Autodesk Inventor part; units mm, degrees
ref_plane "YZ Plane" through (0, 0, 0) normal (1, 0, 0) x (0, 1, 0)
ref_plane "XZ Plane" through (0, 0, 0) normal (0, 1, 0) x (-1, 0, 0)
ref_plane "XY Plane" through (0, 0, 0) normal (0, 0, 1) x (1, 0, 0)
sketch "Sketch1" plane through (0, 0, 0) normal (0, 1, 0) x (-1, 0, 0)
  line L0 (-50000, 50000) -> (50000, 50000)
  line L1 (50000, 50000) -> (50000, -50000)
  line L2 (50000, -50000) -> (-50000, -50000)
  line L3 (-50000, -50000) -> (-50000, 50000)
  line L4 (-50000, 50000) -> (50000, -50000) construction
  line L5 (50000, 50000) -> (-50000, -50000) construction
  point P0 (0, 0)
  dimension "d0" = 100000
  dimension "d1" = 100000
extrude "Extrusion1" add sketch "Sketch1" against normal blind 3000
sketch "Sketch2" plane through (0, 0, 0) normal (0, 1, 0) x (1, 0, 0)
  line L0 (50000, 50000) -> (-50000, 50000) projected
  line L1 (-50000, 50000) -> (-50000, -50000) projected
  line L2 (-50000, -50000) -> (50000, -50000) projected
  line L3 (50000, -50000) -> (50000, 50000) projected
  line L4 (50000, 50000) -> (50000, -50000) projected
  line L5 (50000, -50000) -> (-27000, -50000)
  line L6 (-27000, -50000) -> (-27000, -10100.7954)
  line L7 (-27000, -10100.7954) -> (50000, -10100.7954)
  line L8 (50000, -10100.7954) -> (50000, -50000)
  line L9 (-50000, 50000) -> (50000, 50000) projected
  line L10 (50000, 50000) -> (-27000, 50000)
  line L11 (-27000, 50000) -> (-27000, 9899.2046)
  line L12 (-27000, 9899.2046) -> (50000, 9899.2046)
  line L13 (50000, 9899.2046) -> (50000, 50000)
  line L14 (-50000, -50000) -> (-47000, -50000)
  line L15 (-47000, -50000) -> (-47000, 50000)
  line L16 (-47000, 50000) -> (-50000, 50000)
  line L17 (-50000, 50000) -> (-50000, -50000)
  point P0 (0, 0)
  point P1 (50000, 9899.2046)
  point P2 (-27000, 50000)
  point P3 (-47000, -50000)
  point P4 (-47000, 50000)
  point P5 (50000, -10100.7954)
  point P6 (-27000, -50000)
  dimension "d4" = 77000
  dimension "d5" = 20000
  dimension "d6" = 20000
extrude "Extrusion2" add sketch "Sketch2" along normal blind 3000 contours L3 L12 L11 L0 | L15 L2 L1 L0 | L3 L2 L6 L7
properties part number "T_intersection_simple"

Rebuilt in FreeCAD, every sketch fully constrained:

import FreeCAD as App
import Part
import Sketcher
from FreeCAD import Vector


def add_polygon(sketch, points):
    """Adds a closed chain of lines whose ends are joined by coincident constraints."""
    first, n = sketch.GeometryCount, len(points)
    for a, b in zip(points, points[1:] + points[:1]):
        sketch.addGeometry(Part.LineSegment(App.Vector(*a, 0), App.Vector(*b, 0)), False)
    for i in range(n):
        sketch.addConstraint(Sketcher.Constraint("Coincident", first + i, 2, first + (i + 1) % n, 1))

doc = App.newDocument("Part")
body = doc.addObject("PartDesign::Body", "Body")

# Sketch on XZ plane
sketch1 = body.newObject("Sketcher::SketchObject", "Sketch")
sketch1.AttachmentSupport = (doc.getObject("XZ_Plane"), [""])
sketch1.MapMode = "FlatFace"
add_polygon(sketch1, [(-50000, 50000), (50000, 50000), (50000, -50000), (-50000, -50000)])  # lines 0-3
sketch1.addConstraint([
    Sketcher.Constraint("Horizontal", 0),
    Sketcher.Constraint("Vertical", 1),
    Sketcher.Constraint("Horizontal", 2),
    Sketcher.Constraint("Vertical", 3),
    Sketcher.Constraint("Symmetric", 0, 2, 2, 2, -1, 1),
    Sketcher.Constraint("Equal", 2, 1),
    Sketcher.Constraint("DistanceX", 0, 1, 0, 2, 100000.0),
])
pad1 = body.newObject("PartDesign::Pad", "Pad")
pad1.Profile = sketch1
pad1.Length = 3000

# Sketch on XZ plane
sketch2 = body.newObject("Sketcher::SketchObject", "Sketch001")
sketch2.AttachmentSupport = (doc.getObject("XZ_Plane"), [""])
sketch2.MapMode = "FlatFace"
add_polygon(sketch2, [(50000, -9899.2046), (50000, -50000), (-27000, -50000), (-27000, -9899.2046)])  # lines 0-3
add_polygon(sketch2, [(-47000, 50000), (-47000, -50000), (-50000, -50000), (-50000, 50000)])  # lines 4-7
add_polygon(sketch2, [(50000, 50000), (50000, 10100.7954), (-27000, 10100.7954), (-27000, 50000)])  # lines 8-11
sketch2.addConstraint([
    Sketcher.Constraint("Vertical", 0),
    Sketcher.Constraint("Horizontal", 1),
    Sketcher.Constraint("Vertical", 2),
    Sketcher.Constraint("Horizontal", 3),
    Sketcher.Constraint("Vertical", 4),
    Sketcher.Constraint("Horizontal", 5),
    Sketcher.Constraint("Vertical", 6),
    Sketcher.Constraint("Horizontal", 7),
    Sketcher.Constraint("Vertical", 8),
    Sketcher.Constraint("Horizontal", 9),
    Sketcher.Constraint("Vertical", 10),
    Sketcher.Constraint("Horizontal", 11),
    Sketcher.Constraint("Symmetric", 0, 2, 6, 2, -1, 1),
    Sketcher.Constraint("Symmetric", 5, 2, 11, 2, -1, 1),
    Sketcher.Constraint("Symmetric", 1, 2, 10, 2, -1),
    Sketcher.Constraint("DistanceX", 1, 2, 1, 1, 77000.0),
    Sketcher.Constraint("DistanceX", 4, 2, 1, 2, 20000.0),
    Sketcher.Constraint("DistanceY", 3, 2, 8, 2, 20000.0),
    Sketcher.Constraint("DistanceX", 5, 2, 5, 1, 3000.0),
    Sketcher.Constraint("DistanceY", 4, 2, 4, 1, 100000.0),
    Sketcher.Constraint("DistanceY", 0, 2, 0, 1, 40100.7954),
])
pad2 = body.newObject("PartDesign::Pad", "Pad001")
pad2.Profile = sketch2
pad2.Length = 3000
pad2.Reversed = True

doc.recompute()
